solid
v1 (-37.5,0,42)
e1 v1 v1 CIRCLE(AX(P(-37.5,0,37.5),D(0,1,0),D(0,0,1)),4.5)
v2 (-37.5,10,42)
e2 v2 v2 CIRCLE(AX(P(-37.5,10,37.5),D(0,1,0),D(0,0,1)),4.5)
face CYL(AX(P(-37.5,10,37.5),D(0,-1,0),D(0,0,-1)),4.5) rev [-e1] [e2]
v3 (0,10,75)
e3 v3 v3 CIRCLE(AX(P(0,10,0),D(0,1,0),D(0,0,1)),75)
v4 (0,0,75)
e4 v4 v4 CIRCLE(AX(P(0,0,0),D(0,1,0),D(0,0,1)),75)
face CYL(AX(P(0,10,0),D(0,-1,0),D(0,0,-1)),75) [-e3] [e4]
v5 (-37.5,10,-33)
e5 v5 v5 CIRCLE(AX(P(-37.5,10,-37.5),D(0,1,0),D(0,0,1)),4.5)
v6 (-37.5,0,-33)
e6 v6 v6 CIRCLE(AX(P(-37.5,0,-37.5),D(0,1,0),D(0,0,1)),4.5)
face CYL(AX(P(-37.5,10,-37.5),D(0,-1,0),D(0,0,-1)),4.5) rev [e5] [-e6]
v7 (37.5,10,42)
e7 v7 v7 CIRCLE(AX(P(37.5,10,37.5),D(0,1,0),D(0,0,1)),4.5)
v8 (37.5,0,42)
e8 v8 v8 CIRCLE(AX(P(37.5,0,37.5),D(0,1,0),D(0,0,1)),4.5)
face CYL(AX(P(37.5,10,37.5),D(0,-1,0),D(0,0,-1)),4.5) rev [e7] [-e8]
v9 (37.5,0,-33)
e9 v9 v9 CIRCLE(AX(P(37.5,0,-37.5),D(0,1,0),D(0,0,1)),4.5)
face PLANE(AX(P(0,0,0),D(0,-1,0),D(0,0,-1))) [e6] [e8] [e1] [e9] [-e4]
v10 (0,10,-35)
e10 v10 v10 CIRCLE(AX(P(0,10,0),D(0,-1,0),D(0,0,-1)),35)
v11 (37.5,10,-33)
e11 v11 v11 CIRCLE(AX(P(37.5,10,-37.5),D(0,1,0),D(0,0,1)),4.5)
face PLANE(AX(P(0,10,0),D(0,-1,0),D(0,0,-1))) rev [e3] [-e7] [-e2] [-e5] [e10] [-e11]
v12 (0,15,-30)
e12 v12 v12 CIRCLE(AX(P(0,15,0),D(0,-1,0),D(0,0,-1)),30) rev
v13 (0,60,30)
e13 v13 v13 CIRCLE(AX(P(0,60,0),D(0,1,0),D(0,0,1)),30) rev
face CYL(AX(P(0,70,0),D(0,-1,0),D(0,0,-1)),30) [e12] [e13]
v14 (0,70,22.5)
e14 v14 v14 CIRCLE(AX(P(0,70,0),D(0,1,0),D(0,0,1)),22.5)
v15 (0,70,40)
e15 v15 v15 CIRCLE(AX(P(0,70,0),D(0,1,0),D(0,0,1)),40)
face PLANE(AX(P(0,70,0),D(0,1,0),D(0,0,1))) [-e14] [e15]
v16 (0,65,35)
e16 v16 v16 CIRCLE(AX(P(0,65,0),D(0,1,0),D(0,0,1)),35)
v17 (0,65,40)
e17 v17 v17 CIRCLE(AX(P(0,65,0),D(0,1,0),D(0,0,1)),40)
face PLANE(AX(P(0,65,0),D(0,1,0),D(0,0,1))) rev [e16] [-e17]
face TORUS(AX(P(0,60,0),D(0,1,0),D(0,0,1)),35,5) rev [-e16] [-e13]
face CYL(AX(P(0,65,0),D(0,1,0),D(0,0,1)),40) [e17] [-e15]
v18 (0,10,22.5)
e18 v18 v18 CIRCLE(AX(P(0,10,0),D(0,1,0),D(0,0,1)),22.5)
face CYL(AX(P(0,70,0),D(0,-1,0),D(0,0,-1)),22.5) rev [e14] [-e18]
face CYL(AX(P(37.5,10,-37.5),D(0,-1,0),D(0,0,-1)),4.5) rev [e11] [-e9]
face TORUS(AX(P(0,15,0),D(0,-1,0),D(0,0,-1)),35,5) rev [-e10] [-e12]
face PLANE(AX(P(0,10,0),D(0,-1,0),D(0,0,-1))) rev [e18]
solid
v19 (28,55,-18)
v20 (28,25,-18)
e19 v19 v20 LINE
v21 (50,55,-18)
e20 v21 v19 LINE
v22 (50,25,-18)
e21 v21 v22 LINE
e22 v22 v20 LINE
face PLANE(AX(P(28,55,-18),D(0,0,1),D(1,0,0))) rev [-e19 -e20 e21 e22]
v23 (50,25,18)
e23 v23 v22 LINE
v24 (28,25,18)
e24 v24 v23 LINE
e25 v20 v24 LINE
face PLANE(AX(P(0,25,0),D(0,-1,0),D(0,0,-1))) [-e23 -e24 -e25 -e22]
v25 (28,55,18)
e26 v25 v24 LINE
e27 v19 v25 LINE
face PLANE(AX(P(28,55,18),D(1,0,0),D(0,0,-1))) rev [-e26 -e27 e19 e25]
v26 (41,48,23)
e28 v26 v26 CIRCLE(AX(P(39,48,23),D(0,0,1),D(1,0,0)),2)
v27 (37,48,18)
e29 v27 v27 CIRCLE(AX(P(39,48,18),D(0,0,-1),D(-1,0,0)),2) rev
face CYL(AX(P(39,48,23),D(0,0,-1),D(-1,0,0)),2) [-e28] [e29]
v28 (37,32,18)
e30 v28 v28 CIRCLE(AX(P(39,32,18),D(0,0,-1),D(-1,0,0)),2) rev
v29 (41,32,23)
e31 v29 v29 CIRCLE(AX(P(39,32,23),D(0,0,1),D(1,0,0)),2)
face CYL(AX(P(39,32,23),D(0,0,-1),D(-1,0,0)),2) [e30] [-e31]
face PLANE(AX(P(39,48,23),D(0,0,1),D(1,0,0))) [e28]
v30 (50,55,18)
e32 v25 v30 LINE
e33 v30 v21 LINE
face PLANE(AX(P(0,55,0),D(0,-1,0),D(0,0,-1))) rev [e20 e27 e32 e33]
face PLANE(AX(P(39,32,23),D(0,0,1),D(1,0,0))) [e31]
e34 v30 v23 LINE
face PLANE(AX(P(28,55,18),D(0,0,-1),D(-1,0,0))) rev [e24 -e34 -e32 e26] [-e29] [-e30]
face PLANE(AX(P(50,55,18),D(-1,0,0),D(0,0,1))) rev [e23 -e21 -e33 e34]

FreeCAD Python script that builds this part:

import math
import FreeCAD as App
import Part
import Sketcher

V = App.Vector


def edges_at(feature, points):
    """Names of the edges that pass closest to the given points."""
    edges = feature.Shape.Edges
    near = lambda p: min(range(len(edges)), key=lambda i: edges[i].distToShape(Part.Vertex(*p))[0])
    return sorted({f"Edge{near(p) + 1}" for p in points})

doc = App.newDocument("Part")
params = doc.addObject("Spreadsheet::Sheet", "Params")
for row, (alias, value) in enumerate([
    ("sketch1_diameter", "9 mm"),
    ("sketch1_width", "100 mm"),
    ("pad1_length", "10 mm"),
    ("sketch2_diameter", "60 mm"),
    ("sketch2_diameter2", "45 mm"),
    ("pad2_length", "60 mm"),
    ("sketch3_diameter", "80 mm"),
    ("sketch3_diameter2", "60 mm"),
    ("pad3_length", "5 mm"),
    ("fillet_radius", "5 mm"),
    ("sketch4_diameter", "150 mm"),
    ("sketch4_radius", "5 mm"),
    ("sketch4_width", "90 mm"),
    ("pad4_length", "10 mm"),
    ("sketch5_width", "22 mm"),
    ("sketch5_height", "36 mm"),
    ("pad5_length", "30 mm"),
    ("sketch6_diameter", "4 mm"),
    ("pad6_length", "5 mm"),
], start=1):
    params.set(f"A{row}", alias)
    params.set(f"B{row}", "=" + value)
    params.setAlias(f"B{row}", alias)

body = doc.addObject("PartDesign::Body", "Body")

# Sketch on XZ plane
sketch1 = body.newObject("Sketcher::SketchObject", "Sketch")
sketch1.AttachmentSupport = (doc.getObject("XZ_Plane"), [""])
sketch1.MapMode = "FlatFace"
sketch1.addGeometry([
    Part.LineSegment(V(-50, -50, 0), V(-50, 50, 0)),  # 0
    Part.LineSegment(V(-50, 50, 0), V(50, 50, 0)),  # 1
    Part.LineSegment(V(50, 50, 0), V(50, -50, 0)),  # 2
    Part.LineSegment(V(50, -50, 0), V(-50, -50, 0)),  # 3
    Part.Circle(V(-37.5, 37.5, 0), V(0, 0, 1), 4.5),  # 4
    Part.Circle(V(37.5, 37.5, 0), V(0, 0, 1), 4.5),  # 5
    Part.Circle(V(-37.5, -37.5, 0), V(0, 0, 1), 4.5),  # 6
    Part.Circle(V(37.5, -37.5, 0), V(0, 0, 1), 4.5),  # 7
], False)
sketch1.addConstraint([
    Sketcher.Constraint("Coincident", 0, 2, 1, 1),
    Sketcher.Constraint("Coincident", 1, 2, 2, 1),
    Sketcher.Constraint("Coincident", 2, 2, 3, 1),
    Sketcher.Constraint("Coincident", 3, 2, 0, 1),
    Sketcher.Constraint("Vertical", 0),
    Sketcher.Constraint("Horizontal", 1),
    Sketcher.Constraint("Vertical", 2),
    Sketcher.Constraint("Horizontal", 3),
    Sketcher.Constraint("Equal", 4, 5),
    Sketcher.Constraint("Equal", 5, 6),
    Sketcher.Constraint("Equal", 6, 7),
    Sketcher.Constraint("Symmetric", 5, 3, 6, 3, -1, 1),
    Sketcher.Constraint("Symmetric", 4, 3, 7, 3, -1, 1),
    Sketcher.Constraint("Symmetric", 0, 2, 2, 2, -1, 1),
    Sketcher.Constraint("Symmetric", 4, 3, 5, 3, -2),
    Sketcher.Constraint("Equal", 3, 0),
    Sketcher.Constraint("Diameter", 4, 9.0),
    Sketcher.Constraint("DistanceX", 1, 1, 1, 2, 100.0),
    Sketcher.Constraint("DistanceX", 4, 3, 5, 3, 75.0),
    Sketcher.Constraint("DistanceY", 6, 3, 4, 3, 75.0),
])
sketch1.setExpression("Constraints[16]", "Params.sketch1_diameter")
sketch1.setExpression("Constraints[17]", "Params.sketch1_width")
pad1 = body.newObject("PartDesign::Pad", "Pad")
pad1.Profile = sketch1
pad1.setExpression("Length", "Params.pad1_length")
pad1.Reversed = True

# Sketch on XZ plane
sketch2 = body.newObject("Sketcher::SketchObject", "Sketch001")
sketch2.AttachmentSupport = (doc.getObject("XZ_Plane"), [""])
sketch2.MapMode = "FlatFace"
sketch2.AttachmentOffset = App.Placement(V(0, 0, -10), App.Rotation())
sketch2.addGeometry([
    Part.Circle(V(0, 0, 0), V(0, 0, 1), 30),
    Part.Circle(V(0, 0, 0), V(0, 0, 1), 22.5),
], False)
sketch2.addConstraint([
    Sketcher.Constraint("Coincident", 0, 3, -1, 1),
    Sketcher.Constraint("Coincident", 1, 3, -1, 1),
    Sketcher.Constraint("Diameter", 0, 60.0),
    Sketcher.Constraint("Diameter", 1, 45.0),
])
sketch2.setExpression("Constraints[2]", "Params.sketch2_diameter")
sketch2.setExpression("Constraints[3]", "Params.sketch2_diameter2")
pad2 = body.newObject("PartDesign::Pad", "Pad001")
pad2.Profile = sketch2
pad2.setExpression("Length", "Params.pad2_length")
pad2.Reversed = True

# Sketch on XZ plane
sketch3 = body.newObject("Sketcher::SketchObject", "Sketch002")
sketch3.AttachmentSupport = (doc.getObject("XZ_Plane"), [""])
sketch3.MapMode = "FlatFace"
sketch3.AttachmentOffset = App.Placement(V(0, 0, -70), App.Rotation())
sketch3.addGeometry([
    Part.Circle(V(0, 0, 0), V(0, 0, 1), 40),
    Part.Circle(V(0, 0, 0), V(0, 0, 1), 30),
], False)
sketch3.addConstraint([
    Sketcher.Constraint("Coincident", 0, 3, -1, 1),
    Sketcher.Constraint("Coincident", 1, 3, -1, 1),
    Sketcher.Constraint("Diameter", 0, 80.0),
    Sketcher.Constraint("Diameter", 1, 60.0),
])
sketch3.setExpression("Constraints[2]", "Params.sketch3_diameter")
sketch3.setExpression("Constraints[3]", "Params.sketch3_diameter2")
pad3 = body.newObject("PartDesign::Pad", "Pad002")
pad3.Profile = sketch3
pad3.setExpression("Length", "Params.pad3_length")
doc.recompute()

fillet = body.newObject("PartDesign::Fillet", "Fillet")
fillet.Base = (pad3, edges_at(pad3, [
    (-30, 10, 0),
    (-30, 65, 0),
    (50, 5, 50),
    (-50, 5, 50),
    (-50, 5, -50),
    (50, 5, -50),
]))
fillet.setExpression("Radius", "Params.fillet_radius")

# Sketch on XZ plane
sketch4 = body.newObject("Sketcher::SketchObject", "Sketch003")
sketch4.AttachmentSupport = (doc.getObject("XZ_Plane"), [""])
sketch4.MapMode = "FlatFace"
sketch4.addGeometry([
    Part.Circle(V(0, 0, 0), V(0, 0, 1), 75),  # 0
    Part.LineSegment(V(-45, -50, 0), V(45, -50, 0)),  # 1
    Part.ArcOfCircle(Part.Circle(V(45, -45, 0), V(0, 0, 1), 5), math.radians(-90), math.radians(0)),  # 2
    Part.LineSegment(V(50, -45, 0), V(50, 45, 0)),  # 3
    Part.ArcOfCircle(Part.Circle(V(45, 45, 0), V(0, 0, 1), 5), math.radians(0), math.radians(90)),  # 4
    Part.LineSegment(V(45, 50, 0), V(-45, 50, 0)),  # 5
    Part.ArcOfCircle(Part.Circle(V(-45, 45, 0), V(0, 0, 1), 5), math.radians(90), math.radians(180)),  # 6
    Part.LineSegment(V(-50, 45, 0), V(-50, -45, 0)),  # 7
    Part.ArcOfCircle(Part.Circle(V(-45, -45, 0), V(0, 0, 1), 5), math.radians(180), math.radians(270)),  # 8
], False)
sketch4.addConstraint([
    Sketcher.Constraint("Tangent", 1, 2, 2, 1),
    Sketcher.Constraint("Tangent", 2, 2, 3, 1),
    Sketcher.Constraint("Tangent", 3, 2, 4, 1),
    Sketcher.Constraint("Tangent", 4, 2, 5, 1),
    Sketcher.Constraint("Tangent", 5, 2, 6, 1),
    Sketcher.Constraint("Tangent", 6, 2, 7, 1),
    Sketcher.Constraint("Tangent", 7, 2, 8, 1),
    Sketcher.Constraint("Tangent", 8, 2, 1, 1),
    Sketcher.Constraint("Horizontal", 1),
    Sketcher.Constraint("Vertical", 3),
    Sketcher.Constraint("Horizontal", 5),
    Sketcher.Constraint("Vertical", 7),
    Sketcher.Constraint("Coincident", 0, 3, -1, 1),
    Sketcher.Constraint("Equal", 2, 4),
    Sketcher.Constraint("Equal", 4, 6),
    Sketcher.Constraint("Equal", 6, 8),
    Sketcher.Constraint("Symmetric", 2, 3, 6, 3, -1, 1),
    Sketcher.Constraint("Equal", 5, 3),
    Sketcher.Constraint("Diameter", 0, 150.0),
    Sketcher.Constraint("Radius", 2, 5.0),
    Sketcher.Constraint("DistanceX", 1, 1, 1, 2, 90.0),
])
sketch4.setExpression("Constraints[18]", "Params.sketch4_diameter")
sketch4.setExpression("Constraints[19]", "Params.sketch4_radius")
sketch4.setExpression("Constraints[20]", "Params.sketch4_width")
pad4 = body.newObject("PartDesign::Pad", "Pad003")
pad4.Profile = sketch4
pad4.setExpression("Length", "Params.pad4_length")
pad4.Reversed = True
body2 = doc.addObject("PartDesign::Body", "Body001")

# Sketch on XZ plane
sketch5 = body2.newObject("Sketcher::SketchObject", "Sketch004")
sketch5.AttachmentSupport = (doc.getObject("XZ_Plane001"), [""])
sketch5.MapMode = "FlatFace"
sketch5.AttachmentOffset = App.Placement(V(0, 0, -40), App.Rotation())
sketch5.addGeometry([
    Part.LineSegment(V(28, -18, 0), V(28, 18, 0)),
    Part.LineSegment(V(28, 18, 0), V(50, 18, 0)),
    Part.LineSegment(V(50, 18, 0), V(50, -18, 0)),
    Part.LineSegment(V(50, -18, 0), V(28, -18, 0)),
], False)
sketch5.addConstraint([
    Sketcher.Constraint("Coincident", 0, 2, 1, 1),
    Sketcher.Constraint("Coincident", 1, 2, 2, 1),
    Sketcher.Constraint("Coincident", 2, 2, 3, 1),
    Sketcher.Constraint("Coincident", 3, 2, 0, 1),
    Sketcher.Constraint("Vertical", 0),
    Sketcher.Constraint("Horizontal", 1),
    Sketcher.Constraint("Vertical", 2),
    Sketcher.Constraint("Horizontal", 3),
    Sketcher.Constraint("DistanceX", 1, 1, 1, 2, 22.0),
    Sketcher.Constraint("DistanceY", 0, 1, 0, 2, 36.0),
    Sketcher.Constraint("DistanceX", -1, 1, 0, 2, 28.0),
    Sketcher.Constraint("DistanceY", -1, 1, 0, 2, 18.0),
])
sketch5.setExpression("Constraints[8]", "Params.sketch5_width")
sketch5.setExpression("Constraints[9]", "Params.sketch5_height")
pad5 = body2.newObject("PartDesign::Pad", "Pad004")
pad5.Profile = sketch5
pad5.setExpression("Length", "Params.pad5_length")
pad5.Midplane = True

# Sketch on XY plane
sketch6 = body2.newObject("Sketcher::SketchObject", "Sketch005")
sketch6.AttachmentSupport = (doc.getObject("XY_Plane001"), [""])
sketch6.MapMode = "FlatFace"
sketch6.AttachmentOffset = App.Placement(V(0, 0, 18), App.Rotation())
sketch6.addGeometry([
    Part.Circle(V(39, 48, 0), V(0, 0, 1), 2),
    Part.Circle(V(39, 32, 0), V(0, 0, 1), 2),
], False)
sketch6.addConstraint([
    Sketcher.Constraint("Equal", 0, 1),
    Sketcher.Constraint("Vertical", 0, 3, 1, 3),
    Sketcher.Constraint("Diameter", 0, 4.0),
    Sketcher.Constraint("DistanceX", -1, 1, 0, 3, 39.0),
    Sketcher.Constraint("DistanceY", -1, 1, 0, 3, 48.0),
    Sketcher.Constraint("DistanceY", -1, 1, 1, 3, 32.0),
])
sketch6.setExpression("Constraints[2]", "Params.sketch6_diameter")
pad6 = body2.newObject("PartDesign::Pad", "Pad005")
pad6.Profile = sketch6
pad6.setExpression("Length", "Params.pad6_length")

doc.recompute()
